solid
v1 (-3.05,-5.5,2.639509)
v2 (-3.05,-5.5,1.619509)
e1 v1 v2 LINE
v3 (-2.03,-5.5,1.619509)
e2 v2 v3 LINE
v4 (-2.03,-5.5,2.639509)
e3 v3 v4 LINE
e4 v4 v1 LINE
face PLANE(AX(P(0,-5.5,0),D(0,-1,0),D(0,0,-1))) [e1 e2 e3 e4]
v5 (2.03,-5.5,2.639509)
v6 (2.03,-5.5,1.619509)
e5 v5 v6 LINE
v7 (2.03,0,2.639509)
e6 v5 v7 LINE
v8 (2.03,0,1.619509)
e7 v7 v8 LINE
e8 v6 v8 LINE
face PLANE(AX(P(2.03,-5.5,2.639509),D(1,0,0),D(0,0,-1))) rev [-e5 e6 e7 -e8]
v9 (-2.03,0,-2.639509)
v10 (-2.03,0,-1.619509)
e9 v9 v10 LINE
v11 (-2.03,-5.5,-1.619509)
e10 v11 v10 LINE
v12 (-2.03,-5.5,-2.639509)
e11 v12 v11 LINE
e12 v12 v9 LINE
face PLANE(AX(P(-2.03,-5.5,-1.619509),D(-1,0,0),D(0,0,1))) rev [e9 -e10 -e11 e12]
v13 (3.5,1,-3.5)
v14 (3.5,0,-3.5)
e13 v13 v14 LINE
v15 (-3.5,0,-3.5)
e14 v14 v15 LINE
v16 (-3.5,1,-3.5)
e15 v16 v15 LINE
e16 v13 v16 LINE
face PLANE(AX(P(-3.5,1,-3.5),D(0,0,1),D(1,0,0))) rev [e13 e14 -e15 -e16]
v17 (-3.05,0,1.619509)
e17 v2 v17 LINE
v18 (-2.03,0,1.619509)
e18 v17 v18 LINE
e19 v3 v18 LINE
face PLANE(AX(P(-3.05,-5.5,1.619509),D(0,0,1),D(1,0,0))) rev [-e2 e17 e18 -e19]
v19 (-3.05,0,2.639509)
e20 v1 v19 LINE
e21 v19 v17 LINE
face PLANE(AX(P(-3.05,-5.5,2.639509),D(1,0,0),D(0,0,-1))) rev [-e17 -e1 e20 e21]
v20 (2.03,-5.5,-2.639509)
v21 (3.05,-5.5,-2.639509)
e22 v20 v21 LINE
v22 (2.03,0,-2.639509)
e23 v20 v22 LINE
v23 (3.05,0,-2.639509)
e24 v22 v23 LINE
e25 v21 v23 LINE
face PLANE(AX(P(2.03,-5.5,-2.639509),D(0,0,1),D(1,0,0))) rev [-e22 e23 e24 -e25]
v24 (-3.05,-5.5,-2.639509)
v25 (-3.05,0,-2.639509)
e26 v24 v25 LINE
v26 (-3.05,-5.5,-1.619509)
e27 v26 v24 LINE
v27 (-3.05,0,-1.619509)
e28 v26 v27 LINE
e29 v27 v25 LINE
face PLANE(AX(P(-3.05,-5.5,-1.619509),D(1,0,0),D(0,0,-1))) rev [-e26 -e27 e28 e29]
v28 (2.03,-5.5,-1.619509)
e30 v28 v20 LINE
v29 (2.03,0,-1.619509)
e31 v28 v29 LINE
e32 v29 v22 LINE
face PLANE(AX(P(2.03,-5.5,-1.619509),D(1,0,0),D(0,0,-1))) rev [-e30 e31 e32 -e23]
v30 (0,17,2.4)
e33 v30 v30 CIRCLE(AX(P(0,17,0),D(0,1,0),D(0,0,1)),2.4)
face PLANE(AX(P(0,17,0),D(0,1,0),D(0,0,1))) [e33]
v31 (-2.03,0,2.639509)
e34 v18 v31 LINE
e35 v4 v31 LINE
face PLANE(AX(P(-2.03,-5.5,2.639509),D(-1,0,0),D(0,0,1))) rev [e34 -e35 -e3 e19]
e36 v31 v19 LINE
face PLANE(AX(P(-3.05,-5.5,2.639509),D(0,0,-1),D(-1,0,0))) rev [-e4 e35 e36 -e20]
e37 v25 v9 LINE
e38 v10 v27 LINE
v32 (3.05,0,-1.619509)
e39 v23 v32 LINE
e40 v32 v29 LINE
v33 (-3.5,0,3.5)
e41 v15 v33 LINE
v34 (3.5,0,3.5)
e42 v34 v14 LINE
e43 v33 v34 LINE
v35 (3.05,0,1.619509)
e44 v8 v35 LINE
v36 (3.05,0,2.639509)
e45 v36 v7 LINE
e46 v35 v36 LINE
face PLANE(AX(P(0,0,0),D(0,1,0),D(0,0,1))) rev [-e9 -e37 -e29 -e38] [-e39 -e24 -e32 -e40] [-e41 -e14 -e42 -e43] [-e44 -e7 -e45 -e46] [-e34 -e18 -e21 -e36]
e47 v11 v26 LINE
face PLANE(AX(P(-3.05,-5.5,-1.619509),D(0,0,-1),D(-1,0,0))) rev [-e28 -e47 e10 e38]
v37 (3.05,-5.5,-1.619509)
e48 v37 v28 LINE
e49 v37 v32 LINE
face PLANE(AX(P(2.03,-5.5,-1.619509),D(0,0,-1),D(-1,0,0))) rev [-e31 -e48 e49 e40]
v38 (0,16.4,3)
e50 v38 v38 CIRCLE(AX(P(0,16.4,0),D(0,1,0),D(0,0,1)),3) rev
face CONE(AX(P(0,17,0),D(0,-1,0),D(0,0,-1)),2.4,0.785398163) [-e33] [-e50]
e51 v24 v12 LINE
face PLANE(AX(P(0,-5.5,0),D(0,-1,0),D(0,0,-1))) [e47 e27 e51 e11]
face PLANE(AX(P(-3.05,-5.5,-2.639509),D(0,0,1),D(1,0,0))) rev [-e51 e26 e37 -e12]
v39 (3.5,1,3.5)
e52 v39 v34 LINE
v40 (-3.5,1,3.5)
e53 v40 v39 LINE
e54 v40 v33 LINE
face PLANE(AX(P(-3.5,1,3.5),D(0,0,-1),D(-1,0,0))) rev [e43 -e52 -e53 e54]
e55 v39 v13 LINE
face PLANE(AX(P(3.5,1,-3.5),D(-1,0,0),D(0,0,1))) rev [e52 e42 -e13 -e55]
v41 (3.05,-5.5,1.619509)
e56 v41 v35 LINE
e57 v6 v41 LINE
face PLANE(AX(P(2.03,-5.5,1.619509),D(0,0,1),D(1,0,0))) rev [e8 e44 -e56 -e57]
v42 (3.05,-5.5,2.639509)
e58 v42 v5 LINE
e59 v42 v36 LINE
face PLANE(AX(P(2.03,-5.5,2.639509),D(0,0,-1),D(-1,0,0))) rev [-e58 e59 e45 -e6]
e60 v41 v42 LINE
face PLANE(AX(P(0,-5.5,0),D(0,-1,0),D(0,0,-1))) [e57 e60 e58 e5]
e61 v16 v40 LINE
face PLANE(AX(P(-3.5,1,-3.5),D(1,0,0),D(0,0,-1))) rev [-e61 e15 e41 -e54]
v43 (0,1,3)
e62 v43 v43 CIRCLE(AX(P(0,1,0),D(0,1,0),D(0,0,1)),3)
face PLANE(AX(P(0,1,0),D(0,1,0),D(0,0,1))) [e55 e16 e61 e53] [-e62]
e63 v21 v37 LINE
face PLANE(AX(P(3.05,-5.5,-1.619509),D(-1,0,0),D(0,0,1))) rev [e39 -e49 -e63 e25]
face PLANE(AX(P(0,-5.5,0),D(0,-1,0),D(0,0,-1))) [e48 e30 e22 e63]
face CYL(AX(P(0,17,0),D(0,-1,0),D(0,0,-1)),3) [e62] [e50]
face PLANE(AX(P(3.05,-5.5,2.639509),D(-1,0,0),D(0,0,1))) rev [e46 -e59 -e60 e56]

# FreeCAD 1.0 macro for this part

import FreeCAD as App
import Part
import Sketcher


def edges_at(feature, points):
    """Names of the edges that pass closest to the given points."""
    edges = feature.Shape.Edges
    near = lambda p: min(range(len(edges)), key=lambda i: edges[i].distToShape(Part.Vertex(*p))[0])
    return sorted({f"Edge{near(p) + 1}" for p in points})

doc = App.newDocument("Part")
body = doc.addObject("PartDesign::Body", "Body")

# Sketch on XZ plane
sketch1 = doc.addObject("Sketcher::SketchObject", "Sketch")
body.addObject(sketch1)
sketch1.AttachmentSupport = (doc.XZ_Plane, [""])
sketch1.MapMode = "FlatFace"
sketch1.addGeometry([
    Part.LineSegment(App.Vector(-4, -4, 0), App.Vector(-4, 4, 0)),
    Part.LineSegment(App.Vector(-4, 4, 0), App.Vector(4, 4, 0)),
    Part.LineSegment(App.Vector(4, 4, 0), App.Vector(4, -4, 0)),
    Part.LineSegment(App.Vector(4, -4, 0), App.Vector(-4, -4, 0)),
], False)
sketch1.addConstraint([
    Sketcher.Constraint("Coincident", 0, 2, 1, 1),
    Sketcher.Constraint("Coincident", 1, 2, 2, 1),
    Sketcher.Constraint("Coincident", 2, 2, 3, 1),
    Sketcher.Constraint("Coincident", 3, 2, 0, 1),
    Sketcher.Constraint("Vertical", 0),
    Sketcher.Constraint("Horizontal", 1),
    Sketcher.Constraint("Vertical", 2),
    Sketcher.Constraint("Horizontal", 3),
    Sketcher.Constraint("Symmetric", 0, 2, 2, 2, -1, 1),
    Sketcher.Constraint("Equal", 3, 0),
    Sketcher.Constraint("DistanceX", 1, 1, 1, 2, 7.0),
])
pad1 = doc.addObject("PartDesign::Pad", "Pad")
body.addObject(pad1)
pad1.Profile = sketch1
pad1.Length = 1
pad1.Reversed = True

# Sketch on XZ plane
sketch2 = doc.addObject("Sketcher::SketchObject", "Sketch001")
body.addObject(sketch2)
sketch2.AttachmentSupport = (doc.XZ_Plane, [""])
sketch2.MapMode = "FlatFace"
sketch2.addGeometry([
    Part.LineSegment(App.Vector(-3, 2.6, 0), App.Vector(-3, 1.6, 0)),  # 0
    Part.LineSegment(App.Vector(-3, 1.6, 0), App.Vector(-2, 1.6, 0)),  # 1
    Part.LineSegment(App.Vector(-2, 1.6, 0), App.Vector(-2, 2.6, 0)),  # 2
    Part.LineSegment(App.Vector(-2, 2.6, 0), App.Vector(-3, 2.6, 0)),  # 3
    Part.LineSegment(App.Vector(-3, -1.6, 0), App.Vector(-3, -2.6, 0)),  # 4
    Part.LineSegment(App.Vector(-3, -2.6, 0), App.Vector(-2, -2.6, 0)),  # 5
    Part.LineSegment(App.Vector(-2, -2.6, 0), App.Vector(-2, -1.6, 0)),  # 6
    Part.LineSegment(App.Vector(-2, -1.6, 0), App.Vector(-3, -1.6, 0)),  # 7
    Part.LineSegment(App.Vector(2, 2.6, 0), App.Vector(2, 1.6, 0)),  # 8
    Part.LineSegment(App.Vector(2, 1.6, 0), App.Vector(3, 1.6, 0)),  # 9
    Part.LineSegment(App.Vector(3, 1.6, 0), App.Vector(3, 2.6, 0)),  # 10
    Part.LineSegment(App.Vector(3, 2.6, 0), App.Vector(2, 2.6, 0)),  # 11
    Part.LineSegment(App.Vector(2, -1.6, 0), App.Vector(2, -2.6, 0)),  # 12
    Part.LineSegment(App.Vector(2, -2.6, 0), App.Vector(3, -2.6, 0)),  # 13
    Part.LineSegment(App.Vector(3, -2.6, 0), App.Vector(3, -1.6, 0)),  # 14
    Part.LineSegment(App.Vector(3, -1.6, 0), App.Vector(2, -1.6, 0)),  # 15
], False)
sketch2.addConstraint([
    Sketcher.Constraint("Coincident", 0, 2, 1, 1),
    Sketcher.Constraint("Coincident", 1, 2, 2, 1),
    Sketcher.Constraint("Coincident", 2, 2, 3, 1),
    Sketcher.Constraint("Coincident", 3, 2, 0, 1),
    Sketcher.Constraint("Coincident", 4, 2, 5, 1),
    Sketcher.Constraint("Coincident", 5, 2, 6, 1),
    Sketcher.Constraint("Coincident", 6, 2, 7, 1),
    Sketcher.Constraint("Coincident", 7, 2, 4, 1),
    Sketcher.Constraint("Coincident", 8, 2, 9, 1),
    Sketcher.Constraint("Coincident", 9, 2, 10, 1),
    Sketcher.Constraint("Coincident", 10, 2, 11, 1),
    Sketcher.Constraint("Coincident", 11, 2, 8, 1),
    Sketcher.Constraint("Coincident", 12, 2, 13, 1),
    Sketcher.Constraint("Coincident", 13, 2, 14, 1),
    Sketcher.Constraint("Coincident", 14, 2, 15, 1),
    Sketcher.Constraint("Coincident", 15, 2, 12, 1),
    Sketcher.Constraint("Vertical", 0),
    Sketcher.Constraint("Horizontal", 1),
    Sketcher.Constraint("Vertical", 2),
    Sketcher.Constraint("Horizontal", 3),
    Sketcher.Constraint("Vertical", 4),
    Sketcher.Constraint("Horizontal", 5),
    Sketcher.Constraint("Vertical", 6),
    Sketcher.Constraint("Horizontal", 7),
    Sketcher.Constraint("Vertical", 8),
    Sketcher.Constraint("Horizontal", 9),
    Sketcher.Constraint("Vertical", 10),
    Sketcher.Constraint("Horizontal", 11),
    Sketcher.Constraint("Vertical", 12),
    Sketcher.Constraint("Horizontal", 13),
    Sketcher.Constraint("Vertical", 14),
    Sketcher.Constraint("Horizontal", 15),
    Sketcher.Constraint("Symmetric", 6, 2, 8, 2, -1, 1),
    Sketcher.Constraint("Symmetric", 4, 2, 10, 2, -1, 1),
    Sketcher.Constraint("Symmetric", 2, 2, 12, 2, -1, 1),
    Sketcher.Constraint("Symmetric", 0, 2, 14, 2, -1, 1),
    Sketcher.Constraint("Symmetric", 1, 2, 8, 2, -2),
    Sketcher.Constraint("Symmetric", 3, 2, 10, 2, -2),
    Sketcher.Constraint("Equal", 15, 0),
    Sketcher.Constraint("DistanceX", 1, 1, 1, 2, 1.02),
    Sketcher.Constraint("DistanceX", 0, 2, 9, 2, 6.1),
    Sketcher.Constraint("DistanceY", -1, 1, 0, 2, 1.619509),
])
pad2 = doc.addObject("PartDesign::Pad", "Pad001")
body.addObject(pad2)
pad2.Profile = sketch2
pad2.Length = 5.5

# Sketch on XZ plane
sketch3 = doc.addObject("Sketcher::SketchObject", "Sketch002")
body.addObject(sketch3)
sketch3.AttachmentSupport = (doc.XZ_Plane, [""])
sketch3.MapMode = "FlatFace"
sketch3.AttachmentOffset = App.Placement(App.Vector(0, 0, -1), App.Rotation())
sketch3.addGeometry(Part.Circle(App.Vector(0, 0, 0), App.Vector(0, 0, 1), 3), False)
sketch3.addConstraint([
    Sketcher.Constraint("Coincident", 0, 3, -1, 1),
    Sketcher.Constraint("Diameter", 0, 6.0),
])
pad3 = doc.addObject("PartDesign::Pad", "Pad002")
body.addObject(pad3)
pad3.Profile = sketch3
pad3.Length = 16
pad3.Reversed = True
doc.recompute()

chamfer = doc.addObject("PartDesign::Chamfer", "Chamfer")
body.addObject(chamfer)
chamfer.Base = (pad3, edges_at(pad3, [(0, 17, -3)]))
chamfer.Size = 0.6

doc.recompute()
